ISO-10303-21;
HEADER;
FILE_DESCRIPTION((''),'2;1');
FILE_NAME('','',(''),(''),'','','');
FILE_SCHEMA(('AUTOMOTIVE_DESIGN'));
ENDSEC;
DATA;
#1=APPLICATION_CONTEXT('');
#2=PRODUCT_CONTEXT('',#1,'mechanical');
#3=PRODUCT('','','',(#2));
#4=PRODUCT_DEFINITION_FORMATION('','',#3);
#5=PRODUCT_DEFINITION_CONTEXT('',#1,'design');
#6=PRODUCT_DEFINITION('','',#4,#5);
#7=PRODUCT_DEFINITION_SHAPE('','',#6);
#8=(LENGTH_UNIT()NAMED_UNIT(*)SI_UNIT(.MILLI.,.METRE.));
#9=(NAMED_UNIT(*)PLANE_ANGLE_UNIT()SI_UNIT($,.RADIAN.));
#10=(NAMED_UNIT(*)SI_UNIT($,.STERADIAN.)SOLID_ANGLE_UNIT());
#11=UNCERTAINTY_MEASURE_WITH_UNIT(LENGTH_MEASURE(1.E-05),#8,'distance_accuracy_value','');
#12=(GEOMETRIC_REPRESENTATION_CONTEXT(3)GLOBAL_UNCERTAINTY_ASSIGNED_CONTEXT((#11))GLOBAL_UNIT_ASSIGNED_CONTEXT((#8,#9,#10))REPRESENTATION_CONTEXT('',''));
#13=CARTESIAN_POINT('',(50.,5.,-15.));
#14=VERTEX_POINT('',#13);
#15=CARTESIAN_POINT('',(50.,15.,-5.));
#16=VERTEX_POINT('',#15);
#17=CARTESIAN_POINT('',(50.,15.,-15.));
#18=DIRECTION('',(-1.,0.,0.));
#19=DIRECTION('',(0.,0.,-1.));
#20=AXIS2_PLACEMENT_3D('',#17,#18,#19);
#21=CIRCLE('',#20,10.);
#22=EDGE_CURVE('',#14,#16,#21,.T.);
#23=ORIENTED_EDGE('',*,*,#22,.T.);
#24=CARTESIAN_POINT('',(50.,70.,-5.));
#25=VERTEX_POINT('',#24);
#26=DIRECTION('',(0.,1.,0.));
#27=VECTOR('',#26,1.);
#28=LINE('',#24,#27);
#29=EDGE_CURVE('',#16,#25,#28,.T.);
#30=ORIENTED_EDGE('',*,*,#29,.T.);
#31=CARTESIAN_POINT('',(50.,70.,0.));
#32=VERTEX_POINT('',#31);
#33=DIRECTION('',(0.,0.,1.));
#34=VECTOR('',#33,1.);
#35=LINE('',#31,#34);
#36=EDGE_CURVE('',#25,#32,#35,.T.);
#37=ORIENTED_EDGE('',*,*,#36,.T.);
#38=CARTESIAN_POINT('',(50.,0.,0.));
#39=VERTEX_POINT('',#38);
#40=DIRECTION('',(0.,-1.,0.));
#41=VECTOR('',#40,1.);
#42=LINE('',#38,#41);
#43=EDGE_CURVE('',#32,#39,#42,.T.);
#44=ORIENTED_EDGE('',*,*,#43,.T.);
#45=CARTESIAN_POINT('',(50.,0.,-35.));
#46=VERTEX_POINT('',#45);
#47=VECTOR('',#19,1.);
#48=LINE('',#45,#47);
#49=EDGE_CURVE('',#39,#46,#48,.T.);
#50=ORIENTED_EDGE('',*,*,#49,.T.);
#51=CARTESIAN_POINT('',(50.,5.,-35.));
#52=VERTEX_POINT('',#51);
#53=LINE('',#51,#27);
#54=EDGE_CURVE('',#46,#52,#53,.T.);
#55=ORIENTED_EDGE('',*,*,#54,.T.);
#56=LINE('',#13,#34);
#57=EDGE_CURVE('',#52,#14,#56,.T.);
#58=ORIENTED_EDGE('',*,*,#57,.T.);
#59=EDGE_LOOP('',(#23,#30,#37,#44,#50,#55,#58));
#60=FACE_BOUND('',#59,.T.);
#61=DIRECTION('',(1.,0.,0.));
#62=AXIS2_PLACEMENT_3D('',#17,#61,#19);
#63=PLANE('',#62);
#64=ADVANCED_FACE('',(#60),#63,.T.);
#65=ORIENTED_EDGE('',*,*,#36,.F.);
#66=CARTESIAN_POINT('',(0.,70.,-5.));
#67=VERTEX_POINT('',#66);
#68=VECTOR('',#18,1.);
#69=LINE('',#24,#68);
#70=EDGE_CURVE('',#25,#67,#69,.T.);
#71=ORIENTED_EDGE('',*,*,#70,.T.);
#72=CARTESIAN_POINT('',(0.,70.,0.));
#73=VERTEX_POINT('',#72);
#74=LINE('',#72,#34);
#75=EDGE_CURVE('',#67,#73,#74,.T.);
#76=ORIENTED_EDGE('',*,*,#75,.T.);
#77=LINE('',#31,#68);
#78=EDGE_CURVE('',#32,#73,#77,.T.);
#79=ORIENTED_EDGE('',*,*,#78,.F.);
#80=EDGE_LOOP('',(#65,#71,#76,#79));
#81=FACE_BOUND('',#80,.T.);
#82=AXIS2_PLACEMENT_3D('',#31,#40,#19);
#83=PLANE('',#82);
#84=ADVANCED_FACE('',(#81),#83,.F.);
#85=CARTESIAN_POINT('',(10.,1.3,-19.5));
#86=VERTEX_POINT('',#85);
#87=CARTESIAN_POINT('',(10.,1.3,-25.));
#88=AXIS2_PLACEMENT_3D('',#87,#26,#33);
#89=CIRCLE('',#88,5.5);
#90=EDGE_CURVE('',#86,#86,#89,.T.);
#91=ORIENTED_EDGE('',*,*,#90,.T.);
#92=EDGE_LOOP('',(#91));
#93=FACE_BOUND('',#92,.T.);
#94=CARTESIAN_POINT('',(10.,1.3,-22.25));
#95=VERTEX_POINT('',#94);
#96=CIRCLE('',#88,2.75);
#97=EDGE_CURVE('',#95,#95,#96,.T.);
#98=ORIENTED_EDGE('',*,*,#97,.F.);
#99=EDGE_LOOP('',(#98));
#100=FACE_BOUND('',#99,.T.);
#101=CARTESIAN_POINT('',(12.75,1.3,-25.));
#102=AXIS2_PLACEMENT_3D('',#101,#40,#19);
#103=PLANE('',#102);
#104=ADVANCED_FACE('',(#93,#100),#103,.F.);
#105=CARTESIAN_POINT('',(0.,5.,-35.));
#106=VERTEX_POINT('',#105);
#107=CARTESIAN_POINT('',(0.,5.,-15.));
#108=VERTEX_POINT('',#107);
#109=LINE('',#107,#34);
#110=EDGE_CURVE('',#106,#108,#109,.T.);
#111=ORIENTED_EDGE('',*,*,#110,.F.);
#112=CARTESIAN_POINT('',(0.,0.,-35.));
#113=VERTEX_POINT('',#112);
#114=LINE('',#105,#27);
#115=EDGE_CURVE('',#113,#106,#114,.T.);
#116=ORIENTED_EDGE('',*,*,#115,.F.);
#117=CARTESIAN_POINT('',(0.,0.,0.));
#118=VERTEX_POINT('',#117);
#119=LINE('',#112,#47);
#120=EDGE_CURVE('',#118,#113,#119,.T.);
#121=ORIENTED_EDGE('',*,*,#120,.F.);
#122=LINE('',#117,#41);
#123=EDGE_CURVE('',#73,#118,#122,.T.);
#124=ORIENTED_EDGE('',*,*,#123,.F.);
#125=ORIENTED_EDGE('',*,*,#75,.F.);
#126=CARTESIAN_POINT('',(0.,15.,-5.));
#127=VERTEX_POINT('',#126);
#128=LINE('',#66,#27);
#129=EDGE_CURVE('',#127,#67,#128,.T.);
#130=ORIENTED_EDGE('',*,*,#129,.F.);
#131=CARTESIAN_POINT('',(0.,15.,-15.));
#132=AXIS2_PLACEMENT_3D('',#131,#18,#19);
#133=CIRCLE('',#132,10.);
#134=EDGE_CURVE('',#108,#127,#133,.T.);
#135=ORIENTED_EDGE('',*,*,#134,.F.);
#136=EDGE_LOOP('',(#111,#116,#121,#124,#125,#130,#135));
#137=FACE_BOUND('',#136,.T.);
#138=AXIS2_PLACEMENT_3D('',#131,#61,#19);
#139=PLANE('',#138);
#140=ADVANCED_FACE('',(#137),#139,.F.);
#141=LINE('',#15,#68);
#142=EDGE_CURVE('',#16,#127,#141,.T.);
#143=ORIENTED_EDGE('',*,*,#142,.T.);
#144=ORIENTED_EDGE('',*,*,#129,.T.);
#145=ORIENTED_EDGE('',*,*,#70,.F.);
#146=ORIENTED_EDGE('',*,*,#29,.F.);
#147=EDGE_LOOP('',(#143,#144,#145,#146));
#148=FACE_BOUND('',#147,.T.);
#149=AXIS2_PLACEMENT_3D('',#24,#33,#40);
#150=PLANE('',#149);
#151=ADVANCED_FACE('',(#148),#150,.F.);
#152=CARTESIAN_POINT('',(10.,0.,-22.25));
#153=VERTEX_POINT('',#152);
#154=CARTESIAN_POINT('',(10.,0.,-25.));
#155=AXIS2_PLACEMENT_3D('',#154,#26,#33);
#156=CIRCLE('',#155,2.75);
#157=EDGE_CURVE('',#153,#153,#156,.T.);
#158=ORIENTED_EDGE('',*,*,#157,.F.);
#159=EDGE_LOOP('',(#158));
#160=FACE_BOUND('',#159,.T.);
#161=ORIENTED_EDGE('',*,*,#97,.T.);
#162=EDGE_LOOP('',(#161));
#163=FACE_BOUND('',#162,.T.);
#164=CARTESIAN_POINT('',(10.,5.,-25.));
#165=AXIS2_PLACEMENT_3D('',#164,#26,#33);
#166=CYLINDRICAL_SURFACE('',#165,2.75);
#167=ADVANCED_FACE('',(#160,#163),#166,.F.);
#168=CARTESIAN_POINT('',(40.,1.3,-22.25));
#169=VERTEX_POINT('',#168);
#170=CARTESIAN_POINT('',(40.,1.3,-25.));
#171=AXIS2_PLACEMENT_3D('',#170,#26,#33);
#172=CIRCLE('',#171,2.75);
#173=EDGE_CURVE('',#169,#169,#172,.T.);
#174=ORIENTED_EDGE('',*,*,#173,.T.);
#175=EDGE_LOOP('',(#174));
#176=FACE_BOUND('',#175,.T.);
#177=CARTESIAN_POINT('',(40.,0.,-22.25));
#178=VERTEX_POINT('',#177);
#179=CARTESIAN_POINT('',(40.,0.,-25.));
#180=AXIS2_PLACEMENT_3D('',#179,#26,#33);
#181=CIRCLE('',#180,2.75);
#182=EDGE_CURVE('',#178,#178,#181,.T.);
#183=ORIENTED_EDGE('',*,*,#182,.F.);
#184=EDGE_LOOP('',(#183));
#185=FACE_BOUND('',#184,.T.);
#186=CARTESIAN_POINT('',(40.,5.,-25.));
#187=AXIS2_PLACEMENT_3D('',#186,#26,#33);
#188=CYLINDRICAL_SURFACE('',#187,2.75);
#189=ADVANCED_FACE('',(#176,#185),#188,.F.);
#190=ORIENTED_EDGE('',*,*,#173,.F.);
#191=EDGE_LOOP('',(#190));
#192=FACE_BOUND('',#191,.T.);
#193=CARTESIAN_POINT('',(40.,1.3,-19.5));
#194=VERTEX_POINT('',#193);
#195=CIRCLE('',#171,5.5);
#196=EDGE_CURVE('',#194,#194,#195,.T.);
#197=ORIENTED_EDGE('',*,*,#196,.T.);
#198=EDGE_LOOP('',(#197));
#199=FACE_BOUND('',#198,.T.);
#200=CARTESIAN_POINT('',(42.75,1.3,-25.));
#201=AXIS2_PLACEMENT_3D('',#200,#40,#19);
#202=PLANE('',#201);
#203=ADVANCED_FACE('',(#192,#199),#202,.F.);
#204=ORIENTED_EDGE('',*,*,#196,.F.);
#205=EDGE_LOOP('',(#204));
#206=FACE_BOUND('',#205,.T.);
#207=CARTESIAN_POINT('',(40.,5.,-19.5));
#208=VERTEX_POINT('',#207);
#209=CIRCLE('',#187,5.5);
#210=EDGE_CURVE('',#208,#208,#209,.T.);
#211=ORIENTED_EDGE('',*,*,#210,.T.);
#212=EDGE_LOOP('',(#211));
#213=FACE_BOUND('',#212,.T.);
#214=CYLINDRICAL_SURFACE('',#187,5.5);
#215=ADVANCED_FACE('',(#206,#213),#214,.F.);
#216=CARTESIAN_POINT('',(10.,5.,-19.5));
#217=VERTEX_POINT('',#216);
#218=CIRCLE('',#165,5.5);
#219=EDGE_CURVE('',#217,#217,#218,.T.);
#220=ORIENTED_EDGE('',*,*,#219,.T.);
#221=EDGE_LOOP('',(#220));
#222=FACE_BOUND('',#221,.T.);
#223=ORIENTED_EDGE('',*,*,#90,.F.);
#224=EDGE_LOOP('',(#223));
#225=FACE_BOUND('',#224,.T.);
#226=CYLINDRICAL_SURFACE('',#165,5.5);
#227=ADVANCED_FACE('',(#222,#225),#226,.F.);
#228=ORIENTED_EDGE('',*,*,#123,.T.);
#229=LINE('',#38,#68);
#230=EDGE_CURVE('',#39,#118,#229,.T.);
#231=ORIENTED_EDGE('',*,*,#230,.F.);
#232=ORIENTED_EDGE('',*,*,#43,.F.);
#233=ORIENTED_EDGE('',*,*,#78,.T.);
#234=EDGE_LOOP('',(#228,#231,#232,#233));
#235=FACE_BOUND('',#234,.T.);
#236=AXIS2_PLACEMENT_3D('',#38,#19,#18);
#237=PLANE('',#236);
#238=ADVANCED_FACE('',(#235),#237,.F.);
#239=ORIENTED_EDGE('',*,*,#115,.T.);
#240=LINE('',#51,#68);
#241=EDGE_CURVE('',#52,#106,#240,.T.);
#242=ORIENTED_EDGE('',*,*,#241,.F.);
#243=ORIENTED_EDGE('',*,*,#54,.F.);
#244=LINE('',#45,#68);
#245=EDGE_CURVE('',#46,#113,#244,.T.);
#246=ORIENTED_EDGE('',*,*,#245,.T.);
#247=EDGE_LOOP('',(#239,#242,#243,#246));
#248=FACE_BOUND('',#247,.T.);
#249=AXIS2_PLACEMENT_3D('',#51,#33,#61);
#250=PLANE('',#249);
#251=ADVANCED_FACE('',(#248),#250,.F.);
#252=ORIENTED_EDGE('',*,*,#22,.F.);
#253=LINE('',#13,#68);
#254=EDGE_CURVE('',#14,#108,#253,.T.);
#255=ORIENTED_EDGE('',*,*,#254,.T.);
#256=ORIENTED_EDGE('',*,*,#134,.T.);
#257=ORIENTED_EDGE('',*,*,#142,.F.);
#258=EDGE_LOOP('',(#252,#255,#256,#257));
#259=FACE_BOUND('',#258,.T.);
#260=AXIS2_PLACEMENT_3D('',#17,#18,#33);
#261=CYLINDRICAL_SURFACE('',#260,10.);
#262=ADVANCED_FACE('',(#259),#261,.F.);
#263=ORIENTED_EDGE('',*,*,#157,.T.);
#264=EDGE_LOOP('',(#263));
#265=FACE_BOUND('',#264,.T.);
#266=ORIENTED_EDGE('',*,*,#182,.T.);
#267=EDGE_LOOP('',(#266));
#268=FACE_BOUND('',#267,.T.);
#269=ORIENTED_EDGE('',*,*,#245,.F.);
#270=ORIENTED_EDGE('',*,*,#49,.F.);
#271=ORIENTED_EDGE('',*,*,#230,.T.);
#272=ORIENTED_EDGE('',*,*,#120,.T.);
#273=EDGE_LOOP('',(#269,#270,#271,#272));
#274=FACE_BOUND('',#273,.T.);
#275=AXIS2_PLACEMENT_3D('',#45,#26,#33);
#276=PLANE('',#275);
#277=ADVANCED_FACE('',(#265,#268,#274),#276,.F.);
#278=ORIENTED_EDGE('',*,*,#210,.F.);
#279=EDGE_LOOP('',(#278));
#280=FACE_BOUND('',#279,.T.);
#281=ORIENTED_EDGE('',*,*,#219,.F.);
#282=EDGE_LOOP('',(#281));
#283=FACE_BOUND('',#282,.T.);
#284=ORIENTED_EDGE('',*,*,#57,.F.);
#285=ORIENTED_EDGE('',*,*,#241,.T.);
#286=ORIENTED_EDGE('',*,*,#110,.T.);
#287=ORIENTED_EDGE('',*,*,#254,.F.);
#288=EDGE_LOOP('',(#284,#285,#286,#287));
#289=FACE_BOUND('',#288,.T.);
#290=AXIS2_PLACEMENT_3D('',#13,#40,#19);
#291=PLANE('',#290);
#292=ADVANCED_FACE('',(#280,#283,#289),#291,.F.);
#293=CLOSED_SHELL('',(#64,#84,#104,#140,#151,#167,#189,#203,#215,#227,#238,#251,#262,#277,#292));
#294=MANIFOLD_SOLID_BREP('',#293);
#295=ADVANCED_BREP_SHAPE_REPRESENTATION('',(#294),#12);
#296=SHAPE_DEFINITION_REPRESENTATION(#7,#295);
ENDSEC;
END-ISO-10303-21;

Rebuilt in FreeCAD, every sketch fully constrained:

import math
import FreeCAD as App
import Part
import Sketcher

doc = App.newDocument("Part")
body = doc.addObject("PartDesign::Body", "Body")

# Sketch on YZ plane
sketch1 = body.newObject("Sketcher::SketchObject", "Sketch")
sketch1.AttachmentSupport = (doc.getObject("YZ_Plane"), [""])
sketch1.MapMode = "FlatFace"
sketch1.addGeometry(Part.LineSegment(App.Vector(70, 0, 0), App.Vector(0, 0, 0)), False)
sketch1.addGeometry(Part.LineSegment(App.Vector(0, 0, 0), App.Vector(0, -35, 0)), False)
sketch1.addGeometry(Part.LineSegment(App.Vector(0, -35, 0), App.Vector(5, -35, 0)), False)
sketch1.addGeometry(Part.LineSegment(App.Vector(5, -35, 0), App.Vector(5, -15, 0)), False)
sketch1.addGeometry(Part.ArcOfCircle(Part.Circle(App.Vector(15, -15, 0), App.Vector(0, 0, 1), 10), math.radians(90), math.radians(180)), False)
sketch1.addGeometry(Part.LineSegment(App.Vector(15, -5, 0), App.Vector(70, -5, 0)), False)
sketch1.addGeometry(Part.LineSegment(App.Vector(70, -5, 0), App.Vector(70, 0, 0)), False)
sketch1.addConstraint(Sketcher.Constraint("Coincident", 0, 2, 1, 1))
sketch1.addConstraint(Sketcher.Constraint("Coincident", 1, 2, 2, 1))
sketch1.addConstraint(Sketcher.Constraint("Coincident", 2, 2, 3, 1))
sketch1.addConstraint(Sketcher.Constraint("Tangent", 3, 2, 4, 2))
sketch1.addConstraint(Sketcher.Constraint("Tangent", 4, 1, 5, 1))
sketch1.addConstraint(Sketcher.Constraint("Coincident", 5, 2, 6, 1))
sketch1.addConstraint(Sketcher.Constraint("Coincident", 6, 2, 0, 1))
sketch1.addConstraint(Sketcher.Constraint("Horizontal", 0))
sketch1.addConstraint(Sketcher.Constraint("Vertical", 1))
sketch1.addConstraint(Sketcher.Constraint("Horizontal", 2))
sketch1.addConstraint(Sketcher.Constraint("Vertical", 3))
sketch1.addConstraint(Sketcher.Constraint("Horizontal", 5))
sketch1.addConstraint(Sketcher.Constraint("Vertical", 6))
sketch1.addConstraint(Sketcher.Constraint("Coincident", 0, 2, -1, 1))
sketch1.addConstraint(Sketcher.Constraint("Equal", 2, 6))
sketch1.addConstraint(Sketcher.Constraint("Radius", 4, 10.0))
sketch1.addConstraint(Sketcher.Constraint("DistanceX", 0, 2, 0, 1, 70.0))
sketch1.addConstraint(Sketcher.Constraint("DistanceX", 2, 1, 2, 2, 5.0))
sketch1.addConstraint(Sketcher.Constraint("DistanceY", 1, 2, 1, 1, 35.0))
pad1 = body.newObject("PartDesign::Pad", "Pad")
pad1.Profile = sketch1
pad1.Length = 50

# Sketch on XZ plane
sketch2 = body.newObject("Sketcher::SketchObject", "Sketch001")
sketch2.AttachmentSupport = (doc.getObject("XZ_Plane"), [""])
sketch2.MapMode = "FlatFace"
sketch2.AttachmentOffset = App.Placement(App.Vector(0, 0, -5), App.Rotation())
sketch2.addGeometry(Part.Circle(App.Vector(40, -25, 0), App.Vector(0, 0, 1), 2.8), False)
sketch2.addGeometry(Part.Circle(App.Vector(10, -25, 0), App.Vector(0, 0, 1), 2.8), False)
sketch2.addConstraint(Sketcher.Constraint("Equal", 0, 1))
sketch2.addConstraint(Sketcher.Constraint("Horizontal", 0, 3, 1, 3))
sketch2.addConstraint(Sketcher.Constraint("Diameter", 0, 5.5))
sketch2.addConstraint(Sketcher.Constraint("DistanceX", -1, 1, 0, 3, 40.0))
sketch2.addConstraint(Sketcher.Constraint("DistanceY", 0, 3, -1, 1, 25.0))
sketch2.addConstraint(Sketcher.Constraint("DistanceX", -1, 1, 1, 3, 10.0))
doc.recompute()
hole = body.newObject("PartDesign::Hole", "Hole")
hole.Profile = sketch2
hole.ThreadType = "None"
hole.Diameter = 5.5
hole.DepthType = "Dimension"
hole.Depth = 30
hole.DrillPoint = "Angled"
hole.DrillPointAngle = 118
hole.HoleCutType = "Counterbore"
hole.HoleCutDiameter = 11
hole.HoleCutDepth = 3.7
hole.Reversed = True

doc.recompute()
